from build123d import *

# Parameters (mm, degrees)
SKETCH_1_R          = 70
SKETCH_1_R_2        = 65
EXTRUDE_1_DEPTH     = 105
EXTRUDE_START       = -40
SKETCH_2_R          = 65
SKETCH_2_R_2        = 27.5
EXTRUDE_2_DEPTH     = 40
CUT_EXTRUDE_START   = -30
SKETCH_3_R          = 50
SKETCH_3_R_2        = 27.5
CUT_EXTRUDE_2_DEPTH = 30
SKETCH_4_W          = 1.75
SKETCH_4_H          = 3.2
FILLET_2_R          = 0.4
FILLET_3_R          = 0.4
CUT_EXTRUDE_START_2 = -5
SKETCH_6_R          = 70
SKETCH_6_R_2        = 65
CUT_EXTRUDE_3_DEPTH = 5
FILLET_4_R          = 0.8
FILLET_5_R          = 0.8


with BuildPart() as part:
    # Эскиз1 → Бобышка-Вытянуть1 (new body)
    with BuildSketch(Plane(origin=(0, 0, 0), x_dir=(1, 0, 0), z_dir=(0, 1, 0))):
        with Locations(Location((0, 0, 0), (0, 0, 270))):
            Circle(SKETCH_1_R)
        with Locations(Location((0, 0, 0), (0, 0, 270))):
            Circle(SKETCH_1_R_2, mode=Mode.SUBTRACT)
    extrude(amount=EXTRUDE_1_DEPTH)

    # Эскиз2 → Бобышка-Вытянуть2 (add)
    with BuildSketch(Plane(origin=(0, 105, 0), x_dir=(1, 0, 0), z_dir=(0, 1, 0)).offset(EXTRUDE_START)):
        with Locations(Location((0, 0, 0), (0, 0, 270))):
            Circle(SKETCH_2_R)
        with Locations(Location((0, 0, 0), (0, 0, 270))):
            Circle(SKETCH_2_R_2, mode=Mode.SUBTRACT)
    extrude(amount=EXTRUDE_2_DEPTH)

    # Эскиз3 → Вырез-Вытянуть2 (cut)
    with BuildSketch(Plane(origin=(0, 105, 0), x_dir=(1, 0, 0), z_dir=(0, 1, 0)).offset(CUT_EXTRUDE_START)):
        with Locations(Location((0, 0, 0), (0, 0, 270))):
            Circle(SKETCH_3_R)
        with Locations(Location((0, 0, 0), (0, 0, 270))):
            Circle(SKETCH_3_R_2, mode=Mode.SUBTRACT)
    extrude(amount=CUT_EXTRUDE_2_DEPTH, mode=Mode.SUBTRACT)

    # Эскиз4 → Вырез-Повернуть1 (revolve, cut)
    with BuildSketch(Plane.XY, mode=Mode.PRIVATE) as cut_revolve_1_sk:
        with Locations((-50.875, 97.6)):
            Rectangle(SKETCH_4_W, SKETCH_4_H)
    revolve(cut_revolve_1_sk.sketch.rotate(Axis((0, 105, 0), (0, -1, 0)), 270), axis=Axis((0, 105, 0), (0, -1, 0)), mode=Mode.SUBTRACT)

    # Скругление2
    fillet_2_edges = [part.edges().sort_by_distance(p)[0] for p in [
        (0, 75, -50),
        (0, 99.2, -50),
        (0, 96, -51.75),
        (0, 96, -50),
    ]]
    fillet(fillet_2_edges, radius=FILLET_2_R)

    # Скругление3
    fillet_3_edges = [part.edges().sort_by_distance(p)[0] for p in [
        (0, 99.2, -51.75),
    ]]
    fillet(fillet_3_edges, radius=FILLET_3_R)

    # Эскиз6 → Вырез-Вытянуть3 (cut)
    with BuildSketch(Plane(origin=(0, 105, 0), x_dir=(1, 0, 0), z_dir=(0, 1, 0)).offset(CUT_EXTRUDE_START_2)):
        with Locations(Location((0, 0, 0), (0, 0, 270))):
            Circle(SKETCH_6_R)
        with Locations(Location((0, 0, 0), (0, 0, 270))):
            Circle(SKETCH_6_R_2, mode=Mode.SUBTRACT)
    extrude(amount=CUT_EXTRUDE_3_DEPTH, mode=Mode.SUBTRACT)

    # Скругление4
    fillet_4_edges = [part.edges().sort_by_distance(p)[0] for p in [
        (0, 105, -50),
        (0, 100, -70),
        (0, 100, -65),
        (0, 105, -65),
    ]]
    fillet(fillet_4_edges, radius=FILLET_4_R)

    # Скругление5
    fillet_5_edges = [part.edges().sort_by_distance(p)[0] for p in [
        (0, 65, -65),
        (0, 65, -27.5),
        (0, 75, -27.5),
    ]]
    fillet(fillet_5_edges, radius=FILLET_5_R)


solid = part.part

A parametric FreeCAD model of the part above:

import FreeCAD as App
import Part
import Sketcher


def edges_at(feature, points):
    """Names of the edges that pass closest to the given points."""
    edges = feature.Shape.Edges
    near = lambda p: min(range(len(edges)), key=lambda i: edges[i].distToShape(Part.Vertex(*p))[0])
    return sorted({f"Edge{near(p) + 1}" for p in points})


def add_polygon(sketch, points):
    """Adds a closed chain of lines whose ends are joined by coincident constraints."""
    first, n = sketch.GeometryCount, len(points)
    for a, b in zip(points, points[1:] + points[:1]):
        sketch.addGeometry(Part.LineSegment(App.Vector(*a, 0), App.Vector(*b, 0)), False)
    for i in range(n):
        sketch.addConstraint(Sketcher.Constraint("Coincident", first + i, 2, first + (i + 1) % n, 1))

doc = App.newDocument("Part")
body = doc.addObject("PartDesign::Body", "Body")

# Sketch on XZ plane
sketch1 = body.newObject("Sketcher::SketchObject", "Sketch")
sketch1.AttachmentSupport = (doc.getObject("XZ_Plane"), [""])
sketch1.MapMode = "FlatFace"
sketch1.addGeometry([
    Part.Circle(App.Vector(0, 0, 0), App.Vector(0, 0, 1), 70),
    Part.Circle(App.Vector(0, 0, 0), App.Vector(0, 0, 1), 65),
], False)
sketch1.addConstraint([
    Sketcher.Constraint("Coincident", 0, 3, -1, 1),
    Sketcher.Constraint("Coincident", 1, 3, -1, 1),
    Sketcher.Constraint("Diameter", 0, 140.0),
    Sketcher.Constraint("Diameter", 1, 130.0),
])
pad1 = body.newObject("PartDesign::Pad", "Pad")
pad1.Profile = sketch1
pad1.Length = 105
pad1.Reversed = True

# Sketch on XZ plane
sketch2 = body.newObject("Sketcher::SketchObject", "Sketch001")
sketch2.AttachmentSupport = (doc.getObject("XZ_Plane"), [""])
sketch2.MapMode = "FlatFace"
sketch2.AttachmentOffset = App.Placement(App.Vector(0, 0, -65), App.Rotation())
sketch2.addGeometry([
    Part.Circle(App.Vector(0, 0, 0), App.Vector(0, 0, 1), 65),
    Part.Circle(App.Vector(0, 0, 0), App.Vector(0, 0, 1), 27.5),
], False)
sketch2.addConstraint([
    Sketcher.Constraint("Coincident", 0, 3, -1, 1),
    Sketcher.Constraint("Coincident", 1, 3, -1, 1),
    Sketcher.Constraint("Diameter", 0, 130.0),
    Sketcher.Constraint("Diameter", 1, 55.0),
])
pad2 = body.newObject("PartDesign::Pad", "Pad001")
pad2.Profile = sketch2
pad2.Length = 40
pad2.Reversed = True

# Sketch on XZ plane
sketch3 = body.newObject("Sketcher::SketchObject", "Sketch002")
sketch3.AttachmentSupport = (doc.getObject("XZ_Plane"), [""])
sketch3.MapMode = "FlatFace"
sketch3.AttachmentOffset = App.Placement(App.Vector(0, 0, -75), App.Rotation())
sketch3.addGeometry([
    Part.Circle(App.Vector(0, 0, 0), App.Vector(0, 0, 1), 50),
    Part.Circle(App.Vector(0, 0, 0), App.Vector(0, 0, 1), 27.5),
], False)
sketch3.addConstraint([
    Sketcher.Constraint("Coincident", 0, 3, -1, 1),
    Sketcher.Constraint("Coincident", 1, 3, -1, 1),
    Sketcher.Constraint("Diameter", 0, 100.0),
    Sketcher.Constraint("Diameter", 1, 55.0),
])
pocket1 = body.newObject("PartDesign::Pocket", "Pocket")
pocket1.Profile = sketch3
pocket1.Length = 30

# Sketch on XY plane
sketch4 = body.newObject("Sketcher::SketchObject", "Sketch003")
sketch4.AttachmentSupport = (doc.getObject("XY_Plane"), [""])
sketch4.MapMode = "FlatFace"
add_polygon(sketch4, [(-51.75, 99.2), (-51.75, 96), (-50, 96), (-50, 99.2)])  # lines 0-3
sketch4.addConstraint([
    Sketcher.Constraint("Vertical", 0),
    Sketcher.Constraint("Horizontal", 1),
    Sketcher.Constraint("Vertical", 2),
    Sketcher.Constraint("Horizontal", 3),
    Sketcher.Constraint("DistanceY", 0, 2, 0, 1, 3.2),
    Sketcher.Constraint("DistanceY", -1, 1, 0, 2, 96.0),
    Sketcher.Constraint("DistanceX", 1, 2, -1, 1, 50.0),
    Sketcher.Constraint("DistanceX", 1, 1, 1, 2, 1.75),
])
groove = body.newObject("PartDesign::Groove", "Groove")
groove.Profile = sketch4
groove.ReferenceAxis = (sketch4, ["V_Axis"])
groove.Angle = 360
doc.recompute()

fillet = body.newObject("PartDesign::Fillet", "Fillet")
fillet.Base = (groove, edges_at(groove, [
    (0, 75, -50),
    (0, 99.2, -50),
    (0, 96, -51.75),
    (0, 96, -50),
]))
fillet.Radius = 0.4
doc.recompute()

fillet2 = body.newObject("PartDesign::Fillet", "Fillet001")
fillet2.Base = (fillet, edges_at(fillet, [(0, 99.2, -51.75)]))
fillet2.Radius = 0.4

# Sketch on XZ plane
sketch5 = body.newObject("Sketcher::SketchObject", "Sketch004")
sketch5.AttachmentSupport = (doc.getObject("XZ_Plane"), [""])
sketch5.MapMode = "FlatFace"
sketch5.AttachmentOffset = App.Placement(App.Vector(0, 0, -100), App.Rotation())
sketch5.addGeometry([
    Part.Circle(App.Vector(0, 0, 0), App.Vector(0, 0, 1), 70),
    Part.Circle(App.Vector(0, 0, 0), App.Vector(0, 0, 1), 65),
], False)
sketch5.addConstraint([
    Sketcher.Constraint("Coincident", 0, 3, -1, 1),
    Sketcher.Constraint("Coincident", 1, 3, -1, 1),
    Sketcher.Constraint("Diameter", 0, 140.0),
    Sketcher.Constraint("Diameter", 1, 130.0),
])
pocket2 = body.newObject("PartDesign::Pocket", "Pocket001")
pocket2.Profile = sketch5
pocket2.Length = 5
doc.recompute()

fillet3 = body.newObject("PartDesign::Fillet", "Fillet002")
fillet3.Base = (pocket2, edges_at(pocket2, [
    (0, 105, -50),
    (0, 100, -70),
    (0, 100, -65),
    (0, 105, -65),
]))
fillet3.Radius = 0.8
doc.recompute()

fillet4 = body.newObject("PartDesign::Fillet", "Fillet003")
fillet4.Base = (fillet3, edges_at(fillet3, [(0, 65, -65), (0, 65, -27.5), (0, 75, -27.5)]))
fillet4.Radius = 0.8

doc.recompute()
